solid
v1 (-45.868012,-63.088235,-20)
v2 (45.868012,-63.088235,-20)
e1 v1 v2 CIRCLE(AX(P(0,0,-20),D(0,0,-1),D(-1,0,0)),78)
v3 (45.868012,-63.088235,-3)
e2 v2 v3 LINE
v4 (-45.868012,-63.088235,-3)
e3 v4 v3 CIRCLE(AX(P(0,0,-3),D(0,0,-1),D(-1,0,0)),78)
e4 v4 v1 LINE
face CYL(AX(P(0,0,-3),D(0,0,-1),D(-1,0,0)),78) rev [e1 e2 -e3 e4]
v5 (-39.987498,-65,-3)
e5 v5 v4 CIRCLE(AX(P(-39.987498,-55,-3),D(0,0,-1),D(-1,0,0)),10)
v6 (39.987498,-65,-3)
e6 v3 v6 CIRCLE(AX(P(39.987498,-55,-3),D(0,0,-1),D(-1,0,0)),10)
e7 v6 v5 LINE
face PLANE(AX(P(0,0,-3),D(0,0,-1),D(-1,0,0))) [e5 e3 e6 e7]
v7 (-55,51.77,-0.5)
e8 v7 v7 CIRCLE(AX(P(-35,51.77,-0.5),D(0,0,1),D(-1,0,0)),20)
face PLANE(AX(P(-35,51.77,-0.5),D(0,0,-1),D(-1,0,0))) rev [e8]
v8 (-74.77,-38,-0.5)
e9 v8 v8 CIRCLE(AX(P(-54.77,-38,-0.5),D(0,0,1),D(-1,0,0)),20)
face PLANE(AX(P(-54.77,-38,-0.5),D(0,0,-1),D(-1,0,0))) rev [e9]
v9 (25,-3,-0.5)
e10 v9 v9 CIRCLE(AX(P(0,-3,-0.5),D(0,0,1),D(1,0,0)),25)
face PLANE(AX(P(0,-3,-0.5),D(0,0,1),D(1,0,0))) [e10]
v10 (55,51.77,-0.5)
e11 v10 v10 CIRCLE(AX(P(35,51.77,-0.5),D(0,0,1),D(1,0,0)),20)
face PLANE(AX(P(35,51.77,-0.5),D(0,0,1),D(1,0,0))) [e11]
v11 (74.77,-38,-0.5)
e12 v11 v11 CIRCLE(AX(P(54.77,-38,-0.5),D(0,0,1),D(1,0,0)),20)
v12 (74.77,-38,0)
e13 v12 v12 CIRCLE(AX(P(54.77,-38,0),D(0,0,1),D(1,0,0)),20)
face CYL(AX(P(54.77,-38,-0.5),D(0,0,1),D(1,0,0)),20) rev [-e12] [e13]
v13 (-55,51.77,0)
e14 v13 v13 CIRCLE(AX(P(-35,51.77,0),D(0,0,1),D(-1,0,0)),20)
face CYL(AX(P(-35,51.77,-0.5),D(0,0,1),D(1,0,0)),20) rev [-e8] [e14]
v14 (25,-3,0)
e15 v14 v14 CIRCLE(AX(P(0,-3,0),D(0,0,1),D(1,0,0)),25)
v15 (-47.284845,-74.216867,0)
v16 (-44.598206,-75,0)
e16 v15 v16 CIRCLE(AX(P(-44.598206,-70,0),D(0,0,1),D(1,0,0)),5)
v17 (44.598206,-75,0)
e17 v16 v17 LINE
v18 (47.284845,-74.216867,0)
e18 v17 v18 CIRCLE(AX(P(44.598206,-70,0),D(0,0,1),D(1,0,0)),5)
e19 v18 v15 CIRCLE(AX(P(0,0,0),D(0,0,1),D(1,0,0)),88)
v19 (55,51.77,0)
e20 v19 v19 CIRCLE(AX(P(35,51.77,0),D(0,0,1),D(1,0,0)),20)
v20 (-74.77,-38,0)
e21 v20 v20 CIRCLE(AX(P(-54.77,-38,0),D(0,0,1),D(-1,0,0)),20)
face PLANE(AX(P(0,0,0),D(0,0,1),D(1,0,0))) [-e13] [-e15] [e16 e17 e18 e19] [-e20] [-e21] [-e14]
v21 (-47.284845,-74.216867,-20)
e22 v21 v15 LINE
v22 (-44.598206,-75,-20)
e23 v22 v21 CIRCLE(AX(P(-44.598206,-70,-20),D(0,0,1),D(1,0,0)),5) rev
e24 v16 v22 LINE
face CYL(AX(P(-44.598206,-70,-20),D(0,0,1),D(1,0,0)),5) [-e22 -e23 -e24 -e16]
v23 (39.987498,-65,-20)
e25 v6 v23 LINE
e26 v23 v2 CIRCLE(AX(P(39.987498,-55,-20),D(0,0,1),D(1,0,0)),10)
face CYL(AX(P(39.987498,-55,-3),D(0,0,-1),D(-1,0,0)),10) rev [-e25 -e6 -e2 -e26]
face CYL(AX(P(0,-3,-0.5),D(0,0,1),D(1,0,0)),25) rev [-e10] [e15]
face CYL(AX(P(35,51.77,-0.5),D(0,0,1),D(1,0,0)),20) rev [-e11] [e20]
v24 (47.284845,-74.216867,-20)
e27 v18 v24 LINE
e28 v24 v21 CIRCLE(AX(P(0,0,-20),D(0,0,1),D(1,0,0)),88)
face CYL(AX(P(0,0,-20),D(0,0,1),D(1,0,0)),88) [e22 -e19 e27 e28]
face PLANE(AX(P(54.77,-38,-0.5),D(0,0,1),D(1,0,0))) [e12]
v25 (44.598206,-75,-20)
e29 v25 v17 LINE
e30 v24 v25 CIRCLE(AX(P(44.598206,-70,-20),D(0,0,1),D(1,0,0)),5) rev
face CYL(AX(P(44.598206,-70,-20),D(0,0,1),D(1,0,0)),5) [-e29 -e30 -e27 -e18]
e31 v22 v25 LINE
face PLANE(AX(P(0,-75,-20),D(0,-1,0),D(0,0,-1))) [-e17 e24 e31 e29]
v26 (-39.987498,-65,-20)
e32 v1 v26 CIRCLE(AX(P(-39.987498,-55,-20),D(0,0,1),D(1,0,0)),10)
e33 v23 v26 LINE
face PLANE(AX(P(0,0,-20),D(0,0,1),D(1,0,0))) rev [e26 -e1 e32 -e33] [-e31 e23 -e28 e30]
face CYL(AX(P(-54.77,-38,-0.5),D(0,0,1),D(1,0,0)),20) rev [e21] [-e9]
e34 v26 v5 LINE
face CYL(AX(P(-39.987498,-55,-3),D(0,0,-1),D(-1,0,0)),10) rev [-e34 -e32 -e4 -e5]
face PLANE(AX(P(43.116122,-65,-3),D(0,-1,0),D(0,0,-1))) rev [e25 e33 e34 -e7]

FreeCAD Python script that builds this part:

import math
import FreeCAD as App
import Part
import Sketcher
from FreeCAD import Vector
Q = App.Units.Quantity


def edges_at(feature, points):
    """Names of the edges that pass closest to the given points."""
    edges = feature.Shape.Edges
    near = lambda p: min(range(len(edges)), key=lambda i: edges[i].distToShape(Part.Vertex(*p))[0])
    return sorted({f"Edge{near(p) + 1}" for p in points})

doc = App.newDocument("Part")
body = doc.addObject("PartDesign::Body", "Body")

# Sketch on XY plane
sketch1 = body.newObject("Sketcher::SketchObject", "Sketch")
sketch1.AttachmentSupport = (doc.getObject("XY_Plane"), [""])
sketch1.MapMode = "FlatFace"
sketch1.addGeometry([
    Part.ArcOfCircle(Part.Circle(Vector(0, 0, 0), Vector(0, 0, 1), 88), math.radians(0), math.radians(238.459731)),
    Part.LineSegment(Vector(-46.032597, -75, 0), Vector(46.032597, -75, 0)),
    Part.ArcOfCircle(Part.Circle(Vector(0, 0, 0), Vector(0, 0, 1), 88), math.radians(-58.459731), math.radians(0)),
], False)
sketch1.addConstraint([
    Sketcher.Constraint("Coincident", 0, 2, 1, 1),
    Sketcher.Constraint("Coincident", 1, 2, 2, 1),
    Sketcher.Constraint("Tangent", 2, 2, 0, 1),
    Sketcher.Constraint("Horizontal", 1),
    Sketcher.Constraint("Coincident", 0, 3, -1, 1),
    Sketcher.Constraint("Equal", 0, 2),
    Sketcher.Constraint("PointOnObject", 2, 2, -1),
    Sketcher.Constraint("Radius", 0, Q("88 mm")),
    Sketcher.Constraint("DistanceY", 0, 2, -1, 1, Q("75 mm")),
])
pad1 = body.newObject("PartDesign::Pad", "Pad")
pad1.Profile = sketch1
pad1.Length = 20
pad1.Reversed = True

# Sketch on XY plane
sketch2 = body.newObject("Sketcher::SketchObject", "Sketch001")
sketch2.AttachmentSupport = (doc.getObject("XY_Plane"), [""])
sketch2.MapMode = "FlatFace"
sketch2.AttachmentOffset = App.Placement(Vector(0, 0, -20), App.Rotation())
sketch2.addGeometry([
    Part.LineSegment(Vector(43.116122, -65, 0), Vector(-43.116122, -65, 0)),
    Part.ArcOfCircle(Part.Circle(Vector(0, 0, 0), Vector(0, 0, 1), 78), math.radians(-56.44269), math.radians(236.44269)),
], False)
sketch2.addConstraint([
    Sketcher.Constraint("Coincident", 0, 1, 1, 1),
    Sketcher.Constraint("Coincident", 1, 2, 0, 2),
    Sketcher.Constraint("Horizontal", 0),
    Sketcher.Constraint("Coincident", 1, 3, -1, 1),
    Sketcher.Constraint("Radius", 1, Q("78 mm")),
    Sketcher.Constraint("DistanceY", 0, 1, -1, 1, Q("65 mm")),
])
pocket1 = body.newObject("PartDesign::Pocket", "Pocket")
pocket1.Profile = sketch2
pocket1.Length = 17
pocket1.Reversed = True

# Sketch on XY plane
sketch3 = body.newObject("Sketcher::SketchObject", "Sketch002")
sketch3.AttachmentSupport = (doc.getObject("XY_Plane"), [""])
sketch3.MapMode = "FlatFace"
sketch3.addGeometry([
    Part.Circle(Vector(0, -3, 0), Vector(0, 0, 1), 25),  # 0
    Part.Circle(Vector(-54.77, -38, 0), Vector(0, 0, 1), 20),  # 1
    Part.Circle(Vector(35, 51.77, 0), Vector(0, 0, 1), 20),  # 2
    Part.Circle(Vector(54.77, -38, 0), Vector(0, 0, 1), 20),  # 3
    Part.Circle(Vector(-35, 51.77, 0), Vector(0, 0, 1), 20),  # 4
], False)
sketch3.addConstraint([
    Sketcher.Constraint("Equal", 1, 2),
    Sketcher.Constraint("Equal", 2, 3),
    Sketcher.Constraint("Equal", 3, 4),
    Sketcher.Constraint("Symmetric", 1, 3, 3, 3, -2),
    Sketcher.Constraint("Symmetric", 2, 3, 4, 3, -2),
    Sketcher.Constraint("PointOnObject", 0, 3, -2),
    Sketcher.Constraint("Diameter", 0, Q("50 mm")),
    Sketcher.Constraint("Diameter", 1, Q("40 mm")),
    Sketcher.Constraint("DistanceY", 0, 3, -1, 1, Q("3 mm")),
    Sketcher.Constraint("DistanceY", 1, 3, -1, 1, Q("38 mm")),
    Sketcher.Constraint("DistanceX", -1, 1, 2, 3, Q("35 mm")),
    Sketcher.Constraint("DistanceX", 1, 3, -1, 1, Q("54.77 mm")),
    Sketcher.Constraint("DistanceY", -1, 1, 2, 3, Q("51.77 mm")),
])
pocket2 = body.newObject("PartDesign::Pocket", "Pocket001")
pocket2.Profile = sketch3
pocket2.Length = 0.5
doc.recompute()

fillet = body.newObject("PartDesign::Fillet", "Fillet")
fillet.Base = (pocket2, edges_at(pocket2, [(43.116, -65, -11.5), (-43.116, -65, -11.5)]))
fillet.Radius = 10
doc.recompute()

fillet2 = body.newObject("PartDesign::Fillet", "Fillet001")
fillet2.Base = (fillet, edges_at(fillet, [(-46.033, -75, -10), (46.033, -75, -10)]))
fillet2.Radius = 5

doc.recompute()
